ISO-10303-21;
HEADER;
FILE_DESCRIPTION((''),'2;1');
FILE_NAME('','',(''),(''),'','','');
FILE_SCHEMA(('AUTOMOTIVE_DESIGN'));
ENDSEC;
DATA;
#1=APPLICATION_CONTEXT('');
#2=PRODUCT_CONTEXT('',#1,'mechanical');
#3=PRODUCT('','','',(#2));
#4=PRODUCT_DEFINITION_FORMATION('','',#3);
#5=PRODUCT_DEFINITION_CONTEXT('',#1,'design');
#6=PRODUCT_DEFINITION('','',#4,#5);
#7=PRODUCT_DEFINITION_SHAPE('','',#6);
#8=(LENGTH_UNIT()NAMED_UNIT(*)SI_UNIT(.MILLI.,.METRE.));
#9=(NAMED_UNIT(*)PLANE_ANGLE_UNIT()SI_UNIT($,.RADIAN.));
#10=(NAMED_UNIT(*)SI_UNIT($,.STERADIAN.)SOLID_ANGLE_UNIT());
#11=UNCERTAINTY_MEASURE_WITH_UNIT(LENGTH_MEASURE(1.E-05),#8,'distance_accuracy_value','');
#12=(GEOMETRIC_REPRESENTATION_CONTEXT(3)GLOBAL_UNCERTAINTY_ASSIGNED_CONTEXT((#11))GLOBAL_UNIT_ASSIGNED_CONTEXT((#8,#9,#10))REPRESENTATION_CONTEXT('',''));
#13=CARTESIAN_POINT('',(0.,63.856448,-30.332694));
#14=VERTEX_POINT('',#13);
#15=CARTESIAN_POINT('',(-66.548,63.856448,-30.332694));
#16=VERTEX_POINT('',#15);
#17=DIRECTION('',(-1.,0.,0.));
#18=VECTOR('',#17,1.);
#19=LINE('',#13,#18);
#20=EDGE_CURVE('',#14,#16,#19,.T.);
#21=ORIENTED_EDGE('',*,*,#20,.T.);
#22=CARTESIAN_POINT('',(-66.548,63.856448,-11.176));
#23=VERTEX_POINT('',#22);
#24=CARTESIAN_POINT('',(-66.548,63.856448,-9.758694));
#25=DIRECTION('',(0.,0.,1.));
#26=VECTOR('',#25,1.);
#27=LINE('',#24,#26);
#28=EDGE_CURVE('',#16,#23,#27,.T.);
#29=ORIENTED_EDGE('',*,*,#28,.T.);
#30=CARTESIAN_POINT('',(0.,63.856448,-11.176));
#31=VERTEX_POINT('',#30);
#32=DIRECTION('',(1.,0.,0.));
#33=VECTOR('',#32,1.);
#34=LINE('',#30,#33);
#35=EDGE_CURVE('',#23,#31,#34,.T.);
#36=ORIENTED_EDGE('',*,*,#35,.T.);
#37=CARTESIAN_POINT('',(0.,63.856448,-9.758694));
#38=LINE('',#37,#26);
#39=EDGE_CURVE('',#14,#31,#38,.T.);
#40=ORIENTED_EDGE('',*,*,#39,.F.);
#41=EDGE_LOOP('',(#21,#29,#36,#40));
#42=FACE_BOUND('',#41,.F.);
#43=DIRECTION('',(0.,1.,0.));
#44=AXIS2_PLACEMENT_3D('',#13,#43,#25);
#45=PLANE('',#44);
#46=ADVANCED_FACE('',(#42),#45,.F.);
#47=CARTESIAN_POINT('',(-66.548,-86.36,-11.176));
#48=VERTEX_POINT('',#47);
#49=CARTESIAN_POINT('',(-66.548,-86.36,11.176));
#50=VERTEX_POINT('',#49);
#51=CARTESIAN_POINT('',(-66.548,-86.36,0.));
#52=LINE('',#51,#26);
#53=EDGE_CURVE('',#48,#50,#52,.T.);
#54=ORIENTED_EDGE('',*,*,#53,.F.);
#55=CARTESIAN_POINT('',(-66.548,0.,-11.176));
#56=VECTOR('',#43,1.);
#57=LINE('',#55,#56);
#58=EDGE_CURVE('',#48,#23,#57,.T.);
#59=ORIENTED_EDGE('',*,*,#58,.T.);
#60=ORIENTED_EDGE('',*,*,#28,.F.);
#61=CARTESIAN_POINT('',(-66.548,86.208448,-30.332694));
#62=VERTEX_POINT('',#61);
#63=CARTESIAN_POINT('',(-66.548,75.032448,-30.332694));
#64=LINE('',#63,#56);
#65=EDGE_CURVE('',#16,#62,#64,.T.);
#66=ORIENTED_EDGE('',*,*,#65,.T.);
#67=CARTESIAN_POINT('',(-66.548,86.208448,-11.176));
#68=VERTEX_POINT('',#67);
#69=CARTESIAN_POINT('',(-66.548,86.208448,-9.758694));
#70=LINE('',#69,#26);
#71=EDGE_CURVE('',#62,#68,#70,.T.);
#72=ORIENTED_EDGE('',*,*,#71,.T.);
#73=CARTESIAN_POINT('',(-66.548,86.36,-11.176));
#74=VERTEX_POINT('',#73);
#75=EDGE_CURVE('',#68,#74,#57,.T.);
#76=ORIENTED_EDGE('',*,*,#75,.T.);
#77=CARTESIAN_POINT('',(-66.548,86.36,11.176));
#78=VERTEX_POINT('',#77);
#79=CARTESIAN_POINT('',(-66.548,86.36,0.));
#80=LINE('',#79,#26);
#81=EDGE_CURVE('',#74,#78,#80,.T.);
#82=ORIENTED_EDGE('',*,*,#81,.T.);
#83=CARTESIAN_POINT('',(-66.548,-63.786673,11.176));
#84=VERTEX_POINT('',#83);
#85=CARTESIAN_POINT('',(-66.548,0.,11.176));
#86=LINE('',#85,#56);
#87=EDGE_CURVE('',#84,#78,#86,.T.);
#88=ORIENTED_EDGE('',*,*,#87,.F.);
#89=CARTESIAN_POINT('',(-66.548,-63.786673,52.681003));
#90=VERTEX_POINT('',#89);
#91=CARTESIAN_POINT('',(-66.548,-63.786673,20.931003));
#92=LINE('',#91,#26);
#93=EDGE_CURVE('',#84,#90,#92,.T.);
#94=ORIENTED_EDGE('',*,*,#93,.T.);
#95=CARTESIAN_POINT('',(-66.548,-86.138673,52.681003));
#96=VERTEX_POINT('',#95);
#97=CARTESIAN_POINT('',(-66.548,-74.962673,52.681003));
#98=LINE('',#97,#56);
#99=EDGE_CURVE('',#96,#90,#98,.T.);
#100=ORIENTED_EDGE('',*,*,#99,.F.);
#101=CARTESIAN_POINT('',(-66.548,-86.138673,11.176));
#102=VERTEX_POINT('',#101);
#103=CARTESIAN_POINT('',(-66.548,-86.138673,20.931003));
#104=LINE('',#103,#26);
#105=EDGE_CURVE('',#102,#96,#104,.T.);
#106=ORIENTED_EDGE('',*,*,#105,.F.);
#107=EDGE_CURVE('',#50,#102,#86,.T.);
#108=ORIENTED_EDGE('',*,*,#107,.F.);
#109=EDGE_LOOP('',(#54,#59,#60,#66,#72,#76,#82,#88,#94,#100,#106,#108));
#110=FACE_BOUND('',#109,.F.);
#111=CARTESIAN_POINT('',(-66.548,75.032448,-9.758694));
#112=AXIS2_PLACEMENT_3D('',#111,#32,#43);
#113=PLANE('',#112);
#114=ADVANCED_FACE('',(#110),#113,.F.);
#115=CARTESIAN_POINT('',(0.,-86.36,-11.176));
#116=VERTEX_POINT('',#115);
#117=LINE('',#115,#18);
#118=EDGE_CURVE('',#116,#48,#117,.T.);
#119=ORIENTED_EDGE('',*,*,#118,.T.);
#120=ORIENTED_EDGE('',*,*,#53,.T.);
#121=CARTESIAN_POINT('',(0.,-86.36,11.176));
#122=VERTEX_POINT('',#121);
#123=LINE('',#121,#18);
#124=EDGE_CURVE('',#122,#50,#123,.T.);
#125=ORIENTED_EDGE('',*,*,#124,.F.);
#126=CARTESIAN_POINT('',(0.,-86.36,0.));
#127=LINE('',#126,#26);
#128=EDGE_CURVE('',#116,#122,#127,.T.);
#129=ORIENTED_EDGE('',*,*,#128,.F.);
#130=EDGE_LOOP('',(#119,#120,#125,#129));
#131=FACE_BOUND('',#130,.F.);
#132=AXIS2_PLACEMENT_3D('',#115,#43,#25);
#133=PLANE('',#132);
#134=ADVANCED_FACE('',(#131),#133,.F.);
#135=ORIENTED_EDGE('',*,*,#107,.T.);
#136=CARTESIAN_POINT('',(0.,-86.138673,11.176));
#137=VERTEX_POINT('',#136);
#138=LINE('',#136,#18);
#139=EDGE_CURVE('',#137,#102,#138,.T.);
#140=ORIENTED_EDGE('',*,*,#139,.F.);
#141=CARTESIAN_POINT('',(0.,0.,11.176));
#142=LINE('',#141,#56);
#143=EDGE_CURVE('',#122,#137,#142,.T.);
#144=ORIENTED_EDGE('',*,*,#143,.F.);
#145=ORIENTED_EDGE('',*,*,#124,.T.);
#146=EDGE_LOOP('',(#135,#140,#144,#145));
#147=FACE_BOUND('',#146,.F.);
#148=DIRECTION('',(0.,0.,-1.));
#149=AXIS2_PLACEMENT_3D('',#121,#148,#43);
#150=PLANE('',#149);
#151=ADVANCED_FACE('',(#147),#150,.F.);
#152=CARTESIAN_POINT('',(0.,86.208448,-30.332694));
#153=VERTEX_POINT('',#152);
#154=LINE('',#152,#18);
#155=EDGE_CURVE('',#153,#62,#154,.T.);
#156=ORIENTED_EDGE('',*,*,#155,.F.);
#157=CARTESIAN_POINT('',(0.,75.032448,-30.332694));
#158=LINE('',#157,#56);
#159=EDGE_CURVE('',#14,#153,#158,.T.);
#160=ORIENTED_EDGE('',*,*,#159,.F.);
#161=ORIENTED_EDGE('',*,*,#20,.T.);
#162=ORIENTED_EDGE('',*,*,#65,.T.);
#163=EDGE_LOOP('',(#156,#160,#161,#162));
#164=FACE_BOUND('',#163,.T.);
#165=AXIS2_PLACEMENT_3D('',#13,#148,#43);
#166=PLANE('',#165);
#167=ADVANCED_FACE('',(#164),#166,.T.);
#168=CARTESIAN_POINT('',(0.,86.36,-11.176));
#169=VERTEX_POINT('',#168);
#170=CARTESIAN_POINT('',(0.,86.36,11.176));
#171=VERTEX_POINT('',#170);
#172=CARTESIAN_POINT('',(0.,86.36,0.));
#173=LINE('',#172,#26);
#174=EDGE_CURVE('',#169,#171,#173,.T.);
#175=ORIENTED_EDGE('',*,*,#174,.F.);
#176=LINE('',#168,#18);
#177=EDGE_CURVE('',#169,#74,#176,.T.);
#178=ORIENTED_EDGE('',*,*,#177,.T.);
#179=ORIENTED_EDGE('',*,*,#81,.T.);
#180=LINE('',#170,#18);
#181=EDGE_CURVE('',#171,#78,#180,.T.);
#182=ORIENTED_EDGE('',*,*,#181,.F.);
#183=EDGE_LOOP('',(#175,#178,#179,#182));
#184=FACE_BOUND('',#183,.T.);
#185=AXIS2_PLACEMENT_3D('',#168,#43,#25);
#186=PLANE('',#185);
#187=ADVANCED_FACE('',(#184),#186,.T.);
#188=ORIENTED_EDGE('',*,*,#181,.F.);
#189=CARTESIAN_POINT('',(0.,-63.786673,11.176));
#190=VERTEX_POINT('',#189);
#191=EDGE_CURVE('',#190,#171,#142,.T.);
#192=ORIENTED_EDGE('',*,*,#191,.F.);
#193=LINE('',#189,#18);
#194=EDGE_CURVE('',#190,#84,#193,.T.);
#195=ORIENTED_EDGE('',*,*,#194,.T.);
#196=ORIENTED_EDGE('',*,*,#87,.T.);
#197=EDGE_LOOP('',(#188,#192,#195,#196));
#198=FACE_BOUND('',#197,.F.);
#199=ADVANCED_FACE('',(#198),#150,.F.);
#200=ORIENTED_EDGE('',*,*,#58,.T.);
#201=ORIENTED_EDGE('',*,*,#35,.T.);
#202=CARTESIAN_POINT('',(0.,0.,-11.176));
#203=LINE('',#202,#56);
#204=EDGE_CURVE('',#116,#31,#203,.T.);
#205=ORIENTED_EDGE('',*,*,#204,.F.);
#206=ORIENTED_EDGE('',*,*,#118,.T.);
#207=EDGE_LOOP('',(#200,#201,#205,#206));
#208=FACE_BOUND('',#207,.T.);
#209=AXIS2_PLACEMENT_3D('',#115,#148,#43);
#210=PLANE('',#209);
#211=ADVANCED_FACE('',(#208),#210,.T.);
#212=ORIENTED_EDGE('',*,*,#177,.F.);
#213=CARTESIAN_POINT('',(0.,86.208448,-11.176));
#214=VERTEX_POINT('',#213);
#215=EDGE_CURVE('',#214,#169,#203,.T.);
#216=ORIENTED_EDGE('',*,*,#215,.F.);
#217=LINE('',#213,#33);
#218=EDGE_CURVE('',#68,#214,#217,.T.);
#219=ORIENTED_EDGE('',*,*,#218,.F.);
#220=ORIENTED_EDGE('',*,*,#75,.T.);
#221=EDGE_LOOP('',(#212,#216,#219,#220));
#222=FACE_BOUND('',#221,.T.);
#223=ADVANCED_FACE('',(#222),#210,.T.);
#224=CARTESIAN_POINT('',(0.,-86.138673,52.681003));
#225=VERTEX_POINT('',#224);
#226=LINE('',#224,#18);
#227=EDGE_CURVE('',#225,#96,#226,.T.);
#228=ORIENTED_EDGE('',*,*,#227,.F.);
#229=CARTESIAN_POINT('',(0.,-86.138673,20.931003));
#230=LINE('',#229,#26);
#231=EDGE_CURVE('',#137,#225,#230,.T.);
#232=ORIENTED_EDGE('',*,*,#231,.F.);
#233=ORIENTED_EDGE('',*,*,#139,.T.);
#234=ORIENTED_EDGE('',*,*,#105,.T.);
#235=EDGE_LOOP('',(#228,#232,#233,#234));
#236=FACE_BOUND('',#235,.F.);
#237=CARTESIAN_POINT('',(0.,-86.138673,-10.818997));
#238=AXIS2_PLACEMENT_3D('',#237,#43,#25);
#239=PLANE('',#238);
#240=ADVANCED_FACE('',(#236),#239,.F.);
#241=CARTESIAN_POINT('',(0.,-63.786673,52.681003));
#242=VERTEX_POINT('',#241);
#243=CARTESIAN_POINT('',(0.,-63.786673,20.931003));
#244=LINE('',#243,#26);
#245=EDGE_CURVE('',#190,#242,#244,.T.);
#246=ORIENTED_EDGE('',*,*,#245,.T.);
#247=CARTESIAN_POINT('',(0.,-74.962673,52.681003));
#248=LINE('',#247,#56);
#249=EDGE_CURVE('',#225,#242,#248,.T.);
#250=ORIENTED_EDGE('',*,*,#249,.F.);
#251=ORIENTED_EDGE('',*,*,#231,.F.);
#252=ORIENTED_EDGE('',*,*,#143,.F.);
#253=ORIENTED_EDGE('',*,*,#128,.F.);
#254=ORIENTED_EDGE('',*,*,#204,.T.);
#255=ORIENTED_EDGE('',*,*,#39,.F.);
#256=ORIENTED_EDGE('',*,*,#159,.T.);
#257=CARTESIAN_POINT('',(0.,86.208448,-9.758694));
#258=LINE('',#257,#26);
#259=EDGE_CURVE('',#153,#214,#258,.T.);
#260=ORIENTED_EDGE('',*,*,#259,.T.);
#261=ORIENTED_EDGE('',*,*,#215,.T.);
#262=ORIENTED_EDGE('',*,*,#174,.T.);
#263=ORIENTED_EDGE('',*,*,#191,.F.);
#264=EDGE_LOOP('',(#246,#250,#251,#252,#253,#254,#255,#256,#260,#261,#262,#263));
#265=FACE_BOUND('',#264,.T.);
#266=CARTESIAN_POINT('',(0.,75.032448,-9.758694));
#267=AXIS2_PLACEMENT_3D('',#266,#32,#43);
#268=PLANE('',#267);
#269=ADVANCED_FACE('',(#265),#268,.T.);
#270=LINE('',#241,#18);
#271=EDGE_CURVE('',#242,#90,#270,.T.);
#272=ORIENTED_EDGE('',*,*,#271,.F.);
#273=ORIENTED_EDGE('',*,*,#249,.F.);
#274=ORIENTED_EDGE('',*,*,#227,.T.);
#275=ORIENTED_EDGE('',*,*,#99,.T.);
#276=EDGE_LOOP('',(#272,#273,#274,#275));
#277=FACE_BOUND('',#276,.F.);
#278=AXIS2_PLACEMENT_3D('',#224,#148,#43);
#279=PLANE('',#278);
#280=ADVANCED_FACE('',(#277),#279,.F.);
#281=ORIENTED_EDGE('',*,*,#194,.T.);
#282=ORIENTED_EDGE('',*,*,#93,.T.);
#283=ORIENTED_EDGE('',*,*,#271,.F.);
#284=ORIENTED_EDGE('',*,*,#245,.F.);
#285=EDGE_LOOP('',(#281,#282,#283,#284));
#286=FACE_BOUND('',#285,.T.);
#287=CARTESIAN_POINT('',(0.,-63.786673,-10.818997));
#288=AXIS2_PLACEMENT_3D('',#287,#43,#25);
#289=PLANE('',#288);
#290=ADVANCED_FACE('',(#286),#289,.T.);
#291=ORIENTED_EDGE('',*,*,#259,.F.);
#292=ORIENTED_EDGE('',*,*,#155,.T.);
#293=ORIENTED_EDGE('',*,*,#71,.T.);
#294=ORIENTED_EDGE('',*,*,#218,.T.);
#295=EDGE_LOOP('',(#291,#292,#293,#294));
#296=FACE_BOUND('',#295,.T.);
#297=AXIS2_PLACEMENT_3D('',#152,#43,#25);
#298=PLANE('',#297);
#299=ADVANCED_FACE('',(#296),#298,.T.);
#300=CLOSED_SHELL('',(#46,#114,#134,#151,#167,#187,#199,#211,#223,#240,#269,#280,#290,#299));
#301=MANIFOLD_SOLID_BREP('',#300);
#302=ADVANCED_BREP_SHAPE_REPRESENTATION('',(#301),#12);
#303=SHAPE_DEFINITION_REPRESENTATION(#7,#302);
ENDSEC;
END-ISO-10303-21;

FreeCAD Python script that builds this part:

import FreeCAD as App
import Part
import Sketcher

V = App.Vector
Q = App.Units.Quantity

doc = App.newDocument("Part")
body = doc.addObject("PartDesign::Body", "Body")

# Sketch on YZ plane
sketch1 = body.newObject("Sketcher::SketchObject", "Sketch")
sketch1.AttachmentSupport = (doc.getObject("YZ_Plane"), [""])
sketch1.MapMode = "FlatFace"
sketch1.addGeometry([
    Part.LineSegment(V(-86, 53, 0), V(-86, -11, 0)),
    Part.LineSegment(V(-86, -11, 0), V(-64, -11, 0)),
    Part.LineSegment(V(-64, -11, 0), V(-64, 53, 0)),
    Part.LineSegment(V(-64, 53, 0), V(-86, 53, 0)),
], False)
sketch1.addConstraint([
    Sketcher.Constraint("Coincident", 0, 2, 1, 1),
    Sketcher.Constraint("Coincident", 1, 2, 2, 1),
    Sketcher.Constraint("Coincident", 2, 2, 3, 1),
    Sketcher.Constraint("Coincident", 3, 2, 0, 1),
    Sketcher.Constraint("Vertical", 0),
    Sketcher.Constraint("Horizontal", 1),
    Sketcher.Constraint("Vertical", 2),
    Sketcher.Constraint("Horizontal", 3),
    Sketcher.Constraint("DistanceY", 0, 2, 0, 1, Q("2.5 in")),
    Sketcher.Constraint("DistanceX", 1, 1, 1, 2, Q("0.88 in")),
    Sketcher.Constraint("DistanceX", 0, 2, -1, 1, Q("86.138673 mm")),
    Sketcher.Constraint("DistanceY", 0, 2, -1, 1, Q("10.818997 mm")),
])
pad1 = body.newObject("PartDesign::Pad", "Pad")
pad1.Profile = sketch1
pad1.Length = Q("2.62 in")
pad1.Reversed = True

# Sketch on YZ plane
sketch2 = body.newObject("Sketcher::SketchObject", "Sketch001")
sketch2.AttachmentSupport = (doc.getObject("YZ_Plane"), [""])
sketch2.MapMode = "FlatFace"
sketch2.addGeometry([
    Part.LineSegment(V(-86, 11, 0), V(-86, -11, 0)),
    Part.LineSegment(V(-86, -11, 0), V(86, -11, 0)),
    Part.LineSegment(V(86, -11, 0), V(86, 11, 0)),
    Part.LineSegment(V(86, 11, 0), V(-86, 11, 0)),
], False)
sketch2.addConstraint([
    Sketcher.Constraint("Coincident", 0, 2, 1, 1),
    Sketcher.Constraint("Coincident", 1, 2, 2, 1),
    Sketcher.Constraint("Coincident", 2, 2, 3, 1),
    Sketcher.Constraint("Coincident", 3, 2, 0, 1),
    Sketcher.Constraint("Vertical", 0),
    Sketcher.Constraint("Horizontal", 1),
    Sketcher.Constraint("Vertical", 2),
    Sketcher.Constraint("Horizontal", 3),
    Sketcher.Constraint("Symmetric", 0, 2, 2, 2, -1, 1),
    Sketcher.Constraint("DistanceX", 1, 1, 1, 2, Q("6.8 in")),
    Sketcher.Constraint("DistanceY", 0, 2, 0, 1, Q("0.88 in")),
])
pad2 = body.newObject("PartDesign::Pad", "Pad001")
pad2.Profile = sketch2
pad2.Length = Q("2.62 in")
pad2.Reversed = True

# Sketch on YZ plane
sketch3 = body.newObject("Sketcher::SketchObject", "Sketch002")
sketch3.AttachmentSupport = (doc.getObject("YZ_Plane"), [""])
sketch3.MapMode = "FlatFace"
sketch3.addGeometry([
    Part.LineSegment(V(64, 11, 0), V(64, -30, 0)),
    Part.LineSegment(V(64, -30, 0), V(86, -30, 0)),
    Part.LineSegment(V(86, -30, 0), V(86, 11, 0)),
    Part.LineSegment(V(86, 11, 0), V(64, 11, 0)),
], False)
sketch3.addConstraint([
    Sketcher.Constraint("Coincident", 0, 2, 1, 1),
    Sketcher.Constraint("Coincident", 1, 2, 2, 1),
    Sketcher.Constraint("Coincident", 2, 2, 3, 1),
    Sketcher.Constraint("Coincident", 3, 2, 0, 1),
    Sketcher.Constraint("Vertical", 0),
    Sketcher.Constraint("Horizontal", 1),
    Sketcher.Constraint("Vertical", 2),
    Sketcher.Constraint("Horizontal", 3),
    Sketcher.Constraint("DistanceX", 1, 1, 1, 2, Q("0.88 in")),
    Sketcher.Constraint("DistanceY", 0, 2, 0, 1, Q("1.62 in")),
    Sketcher.Constraint("DistanceX", -1, 1, 1, 2, Q("86.208448 mm")),
    Sketcher.Constraint("DistanceY", 0, 2, -1, 1, Q("30.332694 mm")),
])
pad3 = body.newObject("PartDesign::Pad", "Pad002")
pad3.Profile = sketch3
pad3.Length = Q("2.62 in")
pad3.Reversed = True

doc.recompute()
